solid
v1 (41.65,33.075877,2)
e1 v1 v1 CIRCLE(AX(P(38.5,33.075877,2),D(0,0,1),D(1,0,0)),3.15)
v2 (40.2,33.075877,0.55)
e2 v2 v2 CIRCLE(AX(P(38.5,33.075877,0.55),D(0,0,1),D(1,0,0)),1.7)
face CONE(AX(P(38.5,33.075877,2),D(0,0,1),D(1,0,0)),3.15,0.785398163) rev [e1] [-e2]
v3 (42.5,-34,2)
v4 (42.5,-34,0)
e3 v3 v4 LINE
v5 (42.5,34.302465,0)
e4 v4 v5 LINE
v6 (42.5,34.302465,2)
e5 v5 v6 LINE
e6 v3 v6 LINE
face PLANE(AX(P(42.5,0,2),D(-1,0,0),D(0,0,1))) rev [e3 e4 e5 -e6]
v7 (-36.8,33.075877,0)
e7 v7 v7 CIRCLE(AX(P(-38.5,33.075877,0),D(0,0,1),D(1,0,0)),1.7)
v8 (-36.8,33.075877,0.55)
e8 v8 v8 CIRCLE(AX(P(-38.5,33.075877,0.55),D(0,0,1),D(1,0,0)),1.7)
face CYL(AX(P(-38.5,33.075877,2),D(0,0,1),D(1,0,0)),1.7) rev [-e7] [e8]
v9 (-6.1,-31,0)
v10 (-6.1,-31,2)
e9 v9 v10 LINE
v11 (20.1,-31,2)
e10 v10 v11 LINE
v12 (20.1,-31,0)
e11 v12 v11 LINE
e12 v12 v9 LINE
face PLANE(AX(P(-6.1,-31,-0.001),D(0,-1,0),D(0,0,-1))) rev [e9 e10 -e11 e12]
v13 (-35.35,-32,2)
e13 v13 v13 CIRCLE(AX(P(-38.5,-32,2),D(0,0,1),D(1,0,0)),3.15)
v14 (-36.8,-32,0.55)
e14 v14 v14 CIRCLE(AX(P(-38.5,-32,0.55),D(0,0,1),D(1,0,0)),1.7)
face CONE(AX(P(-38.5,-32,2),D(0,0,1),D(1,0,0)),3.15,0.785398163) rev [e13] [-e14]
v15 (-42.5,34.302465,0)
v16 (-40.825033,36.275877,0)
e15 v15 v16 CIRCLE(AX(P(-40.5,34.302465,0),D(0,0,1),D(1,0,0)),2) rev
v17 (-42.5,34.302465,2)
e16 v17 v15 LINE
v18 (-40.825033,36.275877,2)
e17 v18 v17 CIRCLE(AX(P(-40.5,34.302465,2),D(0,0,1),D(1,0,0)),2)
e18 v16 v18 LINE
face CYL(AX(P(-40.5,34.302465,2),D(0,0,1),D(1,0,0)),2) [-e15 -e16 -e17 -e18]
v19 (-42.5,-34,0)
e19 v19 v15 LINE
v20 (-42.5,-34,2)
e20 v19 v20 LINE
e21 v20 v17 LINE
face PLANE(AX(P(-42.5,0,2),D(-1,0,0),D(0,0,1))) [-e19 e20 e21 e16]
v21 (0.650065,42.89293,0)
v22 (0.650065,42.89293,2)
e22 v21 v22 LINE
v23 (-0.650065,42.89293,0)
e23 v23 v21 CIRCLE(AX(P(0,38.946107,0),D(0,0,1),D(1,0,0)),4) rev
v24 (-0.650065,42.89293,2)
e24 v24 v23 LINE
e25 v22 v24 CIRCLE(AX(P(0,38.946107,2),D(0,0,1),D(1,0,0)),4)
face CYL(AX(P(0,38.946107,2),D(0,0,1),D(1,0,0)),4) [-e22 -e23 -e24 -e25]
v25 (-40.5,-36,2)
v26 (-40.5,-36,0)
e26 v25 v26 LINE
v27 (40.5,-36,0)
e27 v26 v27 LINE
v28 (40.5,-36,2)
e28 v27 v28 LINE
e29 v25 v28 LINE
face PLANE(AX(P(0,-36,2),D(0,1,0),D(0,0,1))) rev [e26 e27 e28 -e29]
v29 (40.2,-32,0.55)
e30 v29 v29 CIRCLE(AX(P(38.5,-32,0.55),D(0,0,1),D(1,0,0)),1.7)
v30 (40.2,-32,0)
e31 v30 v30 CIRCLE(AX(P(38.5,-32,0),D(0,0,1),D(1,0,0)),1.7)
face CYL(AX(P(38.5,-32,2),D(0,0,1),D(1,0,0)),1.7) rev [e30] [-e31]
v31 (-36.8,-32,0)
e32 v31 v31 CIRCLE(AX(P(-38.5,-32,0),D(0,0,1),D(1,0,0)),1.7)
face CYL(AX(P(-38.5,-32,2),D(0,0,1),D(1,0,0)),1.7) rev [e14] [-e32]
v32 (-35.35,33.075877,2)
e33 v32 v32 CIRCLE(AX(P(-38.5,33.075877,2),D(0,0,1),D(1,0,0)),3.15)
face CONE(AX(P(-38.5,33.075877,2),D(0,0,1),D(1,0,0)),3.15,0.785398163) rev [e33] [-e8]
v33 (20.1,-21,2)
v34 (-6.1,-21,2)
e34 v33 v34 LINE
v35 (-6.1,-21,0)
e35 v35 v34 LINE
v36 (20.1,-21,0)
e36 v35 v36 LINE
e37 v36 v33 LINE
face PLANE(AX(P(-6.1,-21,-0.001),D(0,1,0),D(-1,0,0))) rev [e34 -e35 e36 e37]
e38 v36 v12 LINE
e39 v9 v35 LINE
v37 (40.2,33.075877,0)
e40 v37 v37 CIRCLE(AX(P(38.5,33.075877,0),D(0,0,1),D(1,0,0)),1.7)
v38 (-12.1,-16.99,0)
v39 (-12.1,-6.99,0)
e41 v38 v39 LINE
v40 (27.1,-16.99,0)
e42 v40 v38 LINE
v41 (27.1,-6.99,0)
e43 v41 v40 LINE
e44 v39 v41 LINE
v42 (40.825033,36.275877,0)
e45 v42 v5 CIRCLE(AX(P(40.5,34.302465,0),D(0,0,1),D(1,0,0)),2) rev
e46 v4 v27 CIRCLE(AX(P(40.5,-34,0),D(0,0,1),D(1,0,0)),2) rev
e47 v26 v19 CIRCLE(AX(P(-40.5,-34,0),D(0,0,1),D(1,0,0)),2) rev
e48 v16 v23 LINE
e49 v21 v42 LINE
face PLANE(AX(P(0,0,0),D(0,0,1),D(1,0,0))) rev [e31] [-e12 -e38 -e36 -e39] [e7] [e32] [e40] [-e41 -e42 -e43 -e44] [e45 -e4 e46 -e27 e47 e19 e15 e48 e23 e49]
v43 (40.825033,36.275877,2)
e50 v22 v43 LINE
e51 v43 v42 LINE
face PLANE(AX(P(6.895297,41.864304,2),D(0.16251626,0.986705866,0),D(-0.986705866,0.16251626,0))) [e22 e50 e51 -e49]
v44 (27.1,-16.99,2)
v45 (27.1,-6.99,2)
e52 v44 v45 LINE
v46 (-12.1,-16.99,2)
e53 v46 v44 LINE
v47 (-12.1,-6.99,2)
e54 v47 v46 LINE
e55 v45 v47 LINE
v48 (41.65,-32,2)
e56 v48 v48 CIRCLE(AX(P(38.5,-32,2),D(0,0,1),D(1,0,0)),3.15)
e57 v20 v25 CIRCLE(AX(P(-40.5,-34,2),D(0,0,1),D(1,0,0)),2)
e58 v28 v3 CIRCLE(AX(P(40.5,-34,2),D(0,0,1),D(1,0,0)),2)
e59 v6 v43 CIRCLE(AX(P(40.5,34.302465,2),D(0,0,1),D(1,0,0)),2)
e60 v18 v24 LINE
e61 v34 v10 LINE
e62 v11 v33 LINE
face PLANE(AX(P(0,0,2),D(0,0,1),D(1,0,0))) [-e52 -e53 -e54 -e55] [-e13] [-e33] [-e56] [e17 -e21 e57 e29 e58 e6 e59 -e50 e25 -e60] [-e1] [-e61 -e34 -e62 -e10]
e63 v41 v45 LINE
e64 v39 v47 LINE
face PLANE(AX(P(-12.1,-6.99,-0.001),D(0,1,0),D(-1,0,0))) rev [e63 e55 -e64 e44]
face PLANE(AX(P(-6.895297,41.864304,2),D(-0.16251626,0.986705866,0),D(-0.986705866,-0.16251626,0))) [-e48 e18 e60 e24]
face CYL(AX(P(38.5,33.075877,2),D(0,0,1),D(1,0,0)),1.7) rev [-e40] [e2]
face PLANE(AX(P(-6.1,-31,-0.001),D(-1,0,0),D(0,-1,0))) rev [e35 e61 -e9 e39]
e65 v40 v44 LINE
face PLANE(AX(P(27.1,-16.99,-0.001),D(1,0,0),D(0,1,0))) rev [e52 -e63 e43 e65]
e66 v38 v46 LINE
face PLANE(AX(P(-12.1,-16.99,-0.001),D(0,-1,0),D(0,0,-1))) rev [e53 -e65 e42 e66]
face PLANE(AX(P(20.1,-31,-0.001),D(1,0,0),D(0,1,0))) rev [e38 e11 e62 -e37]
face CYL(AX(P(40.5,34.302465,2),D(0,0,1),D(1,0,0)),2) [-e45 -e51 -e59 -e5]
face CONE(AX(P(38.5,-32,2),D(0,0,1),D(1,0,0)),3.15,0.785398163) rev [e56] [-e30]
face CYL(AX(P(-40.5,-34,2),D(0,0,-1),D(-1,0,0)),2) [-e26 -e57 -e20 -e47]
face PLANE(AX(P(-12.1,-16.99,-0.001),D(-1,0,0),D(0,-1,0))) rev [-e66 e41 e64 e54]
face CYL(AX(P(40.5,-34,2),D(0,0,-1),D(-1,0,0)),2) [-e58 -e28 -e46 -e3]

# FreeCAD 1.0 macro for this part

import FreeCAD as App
import Part
import Sketcher
Q = App.Units.Quantity


def edges_at(feature, points):
    """Names of the edges that pass closest to the given points."""
    edges = feature.Shape.Edges
    near = lambda p: min(range(len(edges)), key=lambda i: edges[i].distToShape(Part.Vertex(*p))[0])
    return sorted({f"Edge{near(p) + 1}" for p in points})

doc = App.newDocument("Part")
params = doc.addObject("Spreadsheet::Sheet", "Params")
for row, (alias, value) in enumerate([
    ("sketch1_width", "85 mm"),
    ("sketch1_height", "72 mm"),
    ("pad1_length", "2 mm"),
    ("fillet_radius", "4 mm"),
    ("fillet2_radius", "2 mm"),
    ("fillet3_radius", "2 mm"),
    ("fillet4_radius", "2 mm"),
    ("fillet5_radius", "2 mm"),
    ("sketch2_height", "10 mm"),
    ("sketch2_width", "39.2 mm"),
    ("sketch3_height", "10 mm"),
    ("sketch3_width", "26.2 mm"),
    ("sketch4_height", "2 mm"),
    ("sketch4_width", "1.7 mm"),
    ("sketch4_width2", "3.15 mm"),
    ("groove_angle", "360 deg"),
    ("linearpattern_pitch", "65.075877 mm"),
    ("linearpattern2_pitch", "100.816019 mm"),
    ("linearpattern3_pitch", "77 mm"),
], start=1):
    params.set(f"A{row}", alias)
    params.set(f"B{row}", "=" + value)
    params.setAlias(f"B{row}", alias)

body = doc.addObject("PartDesign::Body", "Body")

# Sketch on XY plane
sketch1 = body.newObject("Sketcher::SketchObject", "Sketch")
sketch1.AttachmentSupport = (doc.getObject("XY_Plane"), [""])
sketch1.MapMode = "FlatFace"
sketch1.addGeometry([
    Part.LineSegment(App.Vector(-42, 36, 0), App.Vector(-42, -36, 0)),  # 0
    Part.LineSegment(App.Vector(-42, -36, 0), App.Vector(42, -36, 0)),  # 1
    Part.LineSegment(App.Vector(42, -36, 0), App.Vector(42, 36, 0)),  # 2
    Part.LineSegment(App.Vector(42, 36, 0), App.Vector(0, 43, 0)),  # 3
    Part.LineSegment(App.Vector(0, 43, 0), App.Vector(-42, 36, 0)),  # 4
], False)
sketch1.addConstraint([
    Sketcher.Constraint("Coincident", 0, 2, 1, 1),
    Sketcher.Constraint("Coincident", 1, 2, 2, 1),
    Sketcher.Constraint("Coincident", 2, 2, 3, 1),
    Sketcher.Constraint("Coincident", 3, 2, 4, 1),
    Sketcher.Constraint("Coincident", 4, 2, 0, 1),
    Sketcher.Constraint("Vertical", 0),
    Sketcher.Constraint("Horizontal", 1),
    Sketcher.Constraint("Vertical", 2),
    Sketcher.Constraint("Symmetric", 0, 2, 2, 2, -1, 1),
    Sketcher.Constraint("PointOnObject", 3, 2, -2),
    Sketcher.Constraint("Horizontal", 2, 2, 4, 2),
    Sketcher.Constraint("DistanceX", 1, 1, 1, 2, Q("85 mm")),
    Sketcher.Constraint("DistanceY", 0, 2, 0, 1, Q("72 mm")),
    Sketcher.Constraint("DistanceY", -1, 1, 3, 2, Q("43 mm")),
])
sketch1.setExpression("Constraints[11]", "Params.sketch1_width")
sketch1.setExpression("Constraints[12]", "Params.sketch1_height")
pad1 = body.newObject("PartDesign::Pad", "Pad")
pad1.Profile = sketch1
pad1.setExpression("Length", "Params.pad1_length")
doc.recompute()

fillet = body.newObject("PartDesign::Fillet", "Fillet")
fillet.Base = (pad1, edges_at(pad1, [(0, 43, 1)]))
fillet.setExpression("Radius", "Params.fillet_radius")
doc.recompute()

fillet2 = body.newObject("PartDesign::Fillet", "Fillet001")
fillet2.Base = (fillet, edges_at(fillet, [(42.5, 36, 1)]))
fillet2.setExpression("Radius", "Params.fillet2_radius")
doc.recompute()

fillet3 = body.newObject("PartDesign::Fillet", "Fillet002")
fillet3.Base = (fillet2, edges_at(fillet2, [(42.5, -36, 1)]))
fillet3.setExpression("Radius", "Params.fillet3_radius")
doc.recompute()

fillet4 = body.newObject("PartDesign::Fillet", "Fillet003")
fillet4.Base = (fillet3, edges_at(fillet3, [(-42.5, -36, 1)]))
fillet4.setExpression("Radius", "Params.fillet4_radius")
doc.recompute()

fillet5 = body.newObject("PartDesign::Fillet", "Fillet004")
fillet5.Base = (fillet4, edges_at(fillet4, [(-42.5, 36, 1)]))
fillet5.setExpression("Radius", "Params.fillet5_radius")

# Sketch on XY plane
sketch2 = body.newObject("Sketcher::SketchObject", "Sketch001")
sketch2.AttachmentSupport = (doc.getObject("XY_Plane"), [""])
sketch2.MapMode = "FlatFace"
sketch2.AttachmentOffset = App.Placement(App.Vector(0, 0, 2), App.Rotation())
sketch2.addGeometry([
    Part.LineSegment(App.Vector(-12, -7, 0), App.Vector(-12, -17, 0)),
    Part.LineSegment(App.Vector(-12, -17, 0), App.Vector(27, -17, 0)),
    Part.LineSegment(App.Vector(27, -17, 0), App.Vector(27, -7, 0)),
    Part.LineSegment(App.Vector(27, -7, 0), App.Vector(-12, -7, 0)),
], False)
sketch2.addConstraint([
    Sketcher.Constraint("Coincident", 0, 2, 1, 1),
    Sketcher.Constraint("Coincident", 1, 2, 2, 1),
    Sketcher.Constraint("Coincident", 2, 2, 3, 1),
    Sketcher.Constraint("Coincident", 3, 2, 0, 1),
    Sketcher.Constraint("Vertical", 0),
    Sketcher.Constraint("Horizontal", 1),
    Sketcher.Constraint("Vertical", 2),
    Sketcher.Constraint("Horizontal", 3),
    Sketcher.Constraint("DistanceY", 0, 2, 0, 1, Q("10 mm")),
    Sketcher.Constraint("DistanceX", 1, 1, 1, 2, Q("39.2 mm")),
    Sketcher.Constraint("DistanceX", 0, 2, -1, 1, Q("12.1 mm")),
    Sketcher.Constraint("DistanceY", 0, 2, -1, 1, Q("16.99 mm")),
])
sketch2.setExpression("Constraints[8]", "Params.sketch2_height")
sketch2.setExpression("Constraints[9]", "Params.sketch2_width")
pocket1 = body.newObject("PartDesign::Pocket", "Pocket")
pocket1.Profile = sketch2
pocket1.Type = "UpToFirst"

# Sketch on XY plane
sketch3 = body.newObject("Sketcher::SketchObject", "Sketch002")
sketch3.AttachmentSupport = (doc.getObject("XY_Plane"), [""])
sketch3.MapMode = "FlatFace"
sketch3.AttachmentOffset = App.Placement(App.Vector(0, 0, 2), App.Rotation())
sketch3.addGeometry([
    Part.LineSegment(App.Vector(-6, -21, 0), App.Vector(-6, -31, 0)),
    Part.LineSegment(App.Vector(-6, -31, 0), App.Vector(20, -31, 0)),
    Part.LineSegment(App.Vector(20, -31, 0), App.Vector(20, -21, 0)),
    Part.LineSegment(App.Vector(20, -21, 0), App.Vector(-6, -21, 0)),
], False)
sketch3.addConstraint([
    Sketcher.Constraint("Coincident", 0, 2, 1, 1),
    Sketcher.Constraint("Coincident", 1, 2, 2, 1),
    Sketcher.Constraint("Coincident", 2, 2, 3, 1),
    Sketcher.Constraint("Coincident", 3, 2, 0, 1),
    Sketcher.Constraint("Vertical", 0),
    Sketcher.Constraint("Horizontal", 1),
    Sketcher.Constraint("Vertical", 2),
    Sketcher.Constraint("Horizontal", 3),
    Sketcher.Constraint("DistanceY", 0, 2, 0, 1, Q("10 mm")),
    Sketcher.Constraint("DistanceX", 1, 1, 1, 2, Q("26.2 mm")),
    Sketcher.Constraint("DistanceY", 0, 2, -1, 1, Q("31 mm")),
    Sketcher.Constraint("DistanceX", 0, 2, -1, 1, Q("6.1 mm")),
])
sketch3.setExpression("Constraints[8]", "Params.sketch3_height")
sketch3.setExpression("Constraints[9]", "Params.sketch3_width")
pocket2 = body.newObject("PartDesign::Pocket", "Pocket001")
pocket2.Profile = sketch3
pocket2.Type = "UpToFirst"

# Sketch on YZ plane
sketch4 = body.newObject("Sketcher::SketchObject", "Sketch003")
sketch4.AttachmentSupport = (doc.getObject("YZ_Plane"), [""])
sketch4.MapMode = "FlatFace"
sketch4.AttachmentOffset = App.Placement(App.Vector(0, 0, -38.5), App.Rotation())
sketch4.addGeometry([
    Part.LineSegment(App.Vector(33.1, 0, 0), App.Vector(33.1, 2, 0)),  # 0
    Part.LineSegment(App.Vector(33.1, 2, 0), App.Vector(29.9, 2, 0)),  # 1
    Part.LineSegment(App.Vector(29.9, 2, 0), App.Vector(31.4, 0.6, 0)),  # 2
    Part.LineSegment(App.Vector(31.4, 0.6, 0), App.Vector(31.4, 0, 0)),  # 3
    Part.LineSegment(App.Vector(31.4, 0, 0), App.Vector(33.1, 0, 0)),  # 4
], False)
sketch4.addGeometry(Part.LineSegment(App.Vector(33.1, 2, 0), App.Vector(33.1, 0, 0)), True)  # axis
sketch4.addConstraint([
    Sketcher.Constraint("Coincident", 0, 2, 1, 1),
    Sketcher.Constraint("Coincident", 1, 2, 2, 1),
    Sketcher.Constraint("Coincident", 2, 2, 3, 1),
    Sketcher.Constraint("Coincident", 3, 2, 4, 1),
    Sketcher.Constraint("Coincident", 4, 2, 0, 1),
    Sketcher.Constraint("Vertical", 0),
    Sketcher.Constraint("Horizontal", 1),
    Sketcher.Constraint("Vertical", 3),
    Sketcher.Constraint("Horizontal", 4),
    Sketcher.Constraint("Vertical", 5),
    Sketcher.Constraint("Coincident", 5, 1, 0, 2),
    Sketcher.Constraint("PointOnObject", 3, 2, -1),
    Sketcher.Constraint("PointOnObject", 5, 2, -1),
    Sketcher.Constraint("DistanceY", 0, 1, 0, 2, Q("2 mm")),
    Sketcher.Constraint("Angle", 2, Q("-45 deg")),
    Sketcher.Constraint("DistanceX", 4, 1, 4, 2, Q("1.7 mm")),
    Sketcher.Constraint("DistanceX", 1, 2, 1, 1, Q("3.15 mm")),
    Sketcher.Constraint("DistanceX", -1, 1, 0, 2, Q("33.075877 mm")),
])
sketch4.setExpression("Constraints[13]", "Params.sketch4_height")
sketch4.setExpression("Constraints[15]", "Params.sketch4_width")
sketch4.setExpression("Constraints[16]", "Params.sketch4_width2")
groove = body.newObject("PartDesign::Groove", "Groove")
groove.Profile = sketch4
groove.ReferenceAxis = (sketch4, ["Axis0"])
groove.setExpression("Angle", "Params.groove_angle")
doc.recompute()

linearpattern = body.newObject("PartDesign::LinearPattern", "LinearPattern")
linearpattern.Originals = [groove]
linearpattern.Direction = (doc.getObject("Y_Axis"), [""])
linearpattern.Mode = "offset"
linearpattern.setExpression("Offset", "Params.linearpattern_pitch")
linearpattern.Occurrences = 2
linearpattern.Reversed = True
body.Tip = linearpattern
doc.recompute()

datumline = body.newObject("PartDesign::Line", "DatumLine")
datumline.Placement = App.Placement(App.Vector(0, 0, 0), App.Rotation(App.Vector(0, 0, 1), App.Vector(0.763767509, -0.645491435, 0)))
linearpattern2 = body.newObject("PartDesign::LinearPattern", "LinearPattern001")
linearpattern2.Originals = [groove]
linearpattern2.Direction = (datumline, [""])
linearpattern2.Mode = "offset"
linearpattern2.setExpression("Offset", "Params.linearpattern2_pitch")
linearpattern2.Occurrences = 2
body.Tip = linearpattern2
doc.recompute()

linearpattern3 = body.newObject("PartDesign::LinearPattern", "LinearPattern002")
linearpattern3.Originals = [groove]
linearpattern3.Direction = (doc.getObject("X_Axis"), [""])
linearpattern3.Mode = "offset"
linearpattern3.setExpression("Offset", "Params.linearpattern3_pitch")
linearpattern3.Occurrences = 2
body.Tip = linearpattern3

doc.recompute()
